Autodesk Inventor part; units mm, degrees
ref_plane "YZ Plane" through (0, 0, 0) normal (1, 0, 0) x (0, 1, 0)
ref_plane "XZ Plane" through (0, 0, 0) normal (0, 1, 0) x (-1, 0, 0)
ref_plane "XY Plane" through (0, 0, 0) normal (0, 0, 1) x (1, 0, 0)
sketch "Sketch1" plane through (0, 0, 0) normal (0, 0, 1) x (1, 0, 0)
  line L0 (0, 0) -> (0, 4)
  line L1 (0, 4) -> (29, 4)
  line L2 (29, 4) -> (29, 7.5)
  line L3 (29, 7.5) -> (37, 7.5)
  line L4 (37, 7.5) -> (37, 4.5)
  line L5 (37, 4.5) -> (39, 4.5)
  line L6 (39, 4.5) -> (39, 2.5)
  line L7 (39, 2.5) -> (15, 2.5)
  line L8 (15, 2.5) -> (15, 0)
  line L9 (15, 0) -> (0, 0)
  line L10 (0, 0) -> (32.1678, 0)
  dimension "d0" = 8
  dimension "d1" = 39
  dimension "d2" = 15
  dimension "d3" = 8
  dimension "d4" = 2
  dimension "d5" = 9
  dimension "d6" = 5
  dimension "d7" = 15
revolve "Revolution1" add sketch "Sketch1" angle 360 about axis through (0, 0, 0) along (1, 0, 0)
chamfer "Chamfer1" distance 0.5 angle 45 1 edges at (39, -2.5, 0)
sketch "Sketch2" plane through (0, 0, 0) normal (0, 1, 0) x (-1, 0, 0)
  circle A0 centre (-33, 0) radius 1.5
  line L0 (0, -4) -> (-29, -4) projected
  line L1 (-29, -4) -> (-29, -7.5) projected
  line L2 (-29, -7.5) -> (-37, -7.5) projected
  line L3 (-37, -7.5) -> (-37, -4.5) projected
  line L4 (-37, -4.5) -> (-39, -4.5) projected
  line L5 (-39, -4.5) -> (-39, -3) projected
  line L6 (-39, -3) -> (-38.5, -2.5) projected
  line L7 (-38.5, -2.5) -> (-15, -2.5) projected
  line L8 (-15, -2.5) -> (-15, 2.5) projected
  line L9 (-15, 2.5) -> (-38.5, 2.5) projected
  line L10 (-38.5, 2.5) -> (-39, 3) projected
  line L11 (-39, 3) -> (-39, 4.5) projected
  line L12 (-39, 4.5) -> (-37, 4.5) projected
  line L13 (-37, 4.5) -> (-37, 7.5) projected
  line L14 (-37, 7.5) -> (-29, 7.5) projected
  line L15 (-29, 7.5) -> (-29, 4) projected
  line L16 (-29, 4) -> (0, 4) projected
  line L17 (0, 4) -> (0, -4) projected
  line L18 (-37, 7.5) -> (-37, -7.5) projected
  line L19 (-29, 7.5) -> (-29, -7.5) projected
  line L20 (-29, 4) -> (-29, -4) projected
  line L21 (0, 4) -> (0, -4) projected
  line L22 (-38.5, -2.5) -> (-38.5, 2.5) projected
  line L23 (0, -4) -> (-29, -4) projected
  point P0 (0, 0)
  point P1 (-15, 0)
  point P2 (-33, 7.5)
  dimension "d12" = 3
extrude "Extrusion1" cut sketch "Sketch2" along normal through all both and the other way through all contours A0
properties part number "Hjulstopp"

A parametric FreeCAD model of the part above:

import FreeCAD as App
import Part
import Sketcher

V = App.Vector
Q = App.Units.Quantity


def edges_at(feature, points):
    """Names of the edges that pass closest to the given points."""
    edges = feature.Shape.Edges
    near = lambda p: min(range(len(edges)), key=lambda i: edges[i].distToShape(Part.Vertex(*p))[0])
    return sorted({f"Edge{near(p) + 1}" for p in points})


def add_polygon(sketch, points):
    """Adds a closed chain of lines whose ends are joined by coincident constraints."""
    first, n = sketch.GeometryCount, len(points)
    for a, b in zip(points, points[1:] + points[:1]):
        sketch.addGeometry(Part.LineSegment(App.Vector(*a, 0), App.Vector(*b, 0)), False)
    for i in range(n):
        sketch.addConstraint(Sketcher.Constraint("Coincident", first + i, 2, first + (i + 1) % n, 1))

doc = App.newDocument("Part")
body = doc.addObject("PartDesign::Body", "Body")

# Sketch on XY plane
sketch1 = doc.addObject("Sketcher::SketchObject", "Sketch")
body.addObject(sketch1)
sketch1.AttachmentSupport = (doc.XY_Plane, [""])
sketch1.MapMode = "FlatFace"
add_polygon(sketch1, [(0, 4), (0, 0), (15, 0), (15, 2.5), (39, 2.5), (39, 4.5), (37, 4.5), (37, 7.5), (29, 7.5), (29, 4)])  # lines 0-9
sketch1.addConstraint(Sketcher.Constraint("Vertical", 0))
sketch1.addConstraint(Sketcher.Constraint("Horizontal", 1))
sketch1.addConstraint(Sketcher.Constraint("Vertical", 2))
sketch1.addConstraint(Sketcher.Constraint("Horizontal", 3))
sketch1.addConstraint(Sketcher.Constraint("Vertical", 4))
sketch1.addConstraint(Sketcher.Constraint("Horizontal", 5))
sketch1.addConstraint(Sketcher.Constraint("Vertical", 6))
sketch1.addConstraint(Sketcher.Constraint("Horizontal", 7))
sketch1.addConstraint(Sketcher.Constraint("Vertical", 8))
sketch1.addConstraint(Sketcher.Constraint("Horizontal", 9))
sketch1.addConstraint(Sketcher.Constraint("Coincident", 0, 2, -1, 1))
sketch1.addConstraint(Sketcher.Constraint("Equal", 5, 4))
sketch1.addConstraint(Sketcher.Constraint("DistanceX", 1, 1, 1, 2, Q("15 mm")))
sketch1.addConstraint(Sketcher.Constraint("DistanceX", 5, 2, 5, 1, Q("2 mm")))
sketch1.addConstraint(Sketcher.Constraint("DistanceX", 7, 2, 7, 1, Q("8 mm")))
sketch1.addConstraint(Sketcher.Constraint("DistanceX", -1, 1, 3, 2, Q("39 mm")))
sketch1.addConstraint(Sketcher.Constraint("DistanceY", 3, 2, 6, 2, Q("5 mm")))
sketch1.addConstraint(Sketcher.Constraint("DistanceY", 0, 2, 0, 1, Q("4 mm")))
sketch1.addConstraint(Sketcher.Constraint("DistanceY", 2, 1, 2, 2, Q("2.5 mm")))
revolution = doc.addObject("PartDesign::Revolution", "Revolution")
body.addObject(revolution)
revolution.Profile = sketch1
revolution.ReferenceAxis = (sketch1, ["H_Axis"])
revolution.Angle = 360
doc.recompute()

chamfer = doc.addObject("PartDesign::Chamfer", "Chamfer")
body.addObject(chamfer)
chamfer.Base = (revolution, edges_at(revolution, [(39, -2.5, 0)]))
chamfer.Size = 0.5

# Sketch on XZ plane
sketch2 = doc.addObject("Sketcher::SketchObject", "Sketch001")
body.addObject(sketch2)
sketch2.AttachmentSupport = (doc.XZ_Plane, [""])
sketch2.MapMode = "FlatFace"
sketch2.addGeometry(Part.Circle(V(33, 0, 0), V(0, 0, 1), 1.5), False)
sketch2.addConstraint(Sketcher.Constraint("PointOnObject", 0, 3, -1))
sketch2.addConstraint(Sketcher.Constraint("Diameter", 0, Q("3 mm")))
sketch2.addConstraint(Sketcher.Constraint("DistanceX", -1, 1, 0, 3, Q("33 mm")))
pocket1 = doc.addObject("PartDesign::Pocket", "Pocket")
body.addObject(pocket1)
pocket1.Profile = sketch2
pocket1.Type = "ThroughAll"
pocket1.Midplane = True

doc.recompute()
